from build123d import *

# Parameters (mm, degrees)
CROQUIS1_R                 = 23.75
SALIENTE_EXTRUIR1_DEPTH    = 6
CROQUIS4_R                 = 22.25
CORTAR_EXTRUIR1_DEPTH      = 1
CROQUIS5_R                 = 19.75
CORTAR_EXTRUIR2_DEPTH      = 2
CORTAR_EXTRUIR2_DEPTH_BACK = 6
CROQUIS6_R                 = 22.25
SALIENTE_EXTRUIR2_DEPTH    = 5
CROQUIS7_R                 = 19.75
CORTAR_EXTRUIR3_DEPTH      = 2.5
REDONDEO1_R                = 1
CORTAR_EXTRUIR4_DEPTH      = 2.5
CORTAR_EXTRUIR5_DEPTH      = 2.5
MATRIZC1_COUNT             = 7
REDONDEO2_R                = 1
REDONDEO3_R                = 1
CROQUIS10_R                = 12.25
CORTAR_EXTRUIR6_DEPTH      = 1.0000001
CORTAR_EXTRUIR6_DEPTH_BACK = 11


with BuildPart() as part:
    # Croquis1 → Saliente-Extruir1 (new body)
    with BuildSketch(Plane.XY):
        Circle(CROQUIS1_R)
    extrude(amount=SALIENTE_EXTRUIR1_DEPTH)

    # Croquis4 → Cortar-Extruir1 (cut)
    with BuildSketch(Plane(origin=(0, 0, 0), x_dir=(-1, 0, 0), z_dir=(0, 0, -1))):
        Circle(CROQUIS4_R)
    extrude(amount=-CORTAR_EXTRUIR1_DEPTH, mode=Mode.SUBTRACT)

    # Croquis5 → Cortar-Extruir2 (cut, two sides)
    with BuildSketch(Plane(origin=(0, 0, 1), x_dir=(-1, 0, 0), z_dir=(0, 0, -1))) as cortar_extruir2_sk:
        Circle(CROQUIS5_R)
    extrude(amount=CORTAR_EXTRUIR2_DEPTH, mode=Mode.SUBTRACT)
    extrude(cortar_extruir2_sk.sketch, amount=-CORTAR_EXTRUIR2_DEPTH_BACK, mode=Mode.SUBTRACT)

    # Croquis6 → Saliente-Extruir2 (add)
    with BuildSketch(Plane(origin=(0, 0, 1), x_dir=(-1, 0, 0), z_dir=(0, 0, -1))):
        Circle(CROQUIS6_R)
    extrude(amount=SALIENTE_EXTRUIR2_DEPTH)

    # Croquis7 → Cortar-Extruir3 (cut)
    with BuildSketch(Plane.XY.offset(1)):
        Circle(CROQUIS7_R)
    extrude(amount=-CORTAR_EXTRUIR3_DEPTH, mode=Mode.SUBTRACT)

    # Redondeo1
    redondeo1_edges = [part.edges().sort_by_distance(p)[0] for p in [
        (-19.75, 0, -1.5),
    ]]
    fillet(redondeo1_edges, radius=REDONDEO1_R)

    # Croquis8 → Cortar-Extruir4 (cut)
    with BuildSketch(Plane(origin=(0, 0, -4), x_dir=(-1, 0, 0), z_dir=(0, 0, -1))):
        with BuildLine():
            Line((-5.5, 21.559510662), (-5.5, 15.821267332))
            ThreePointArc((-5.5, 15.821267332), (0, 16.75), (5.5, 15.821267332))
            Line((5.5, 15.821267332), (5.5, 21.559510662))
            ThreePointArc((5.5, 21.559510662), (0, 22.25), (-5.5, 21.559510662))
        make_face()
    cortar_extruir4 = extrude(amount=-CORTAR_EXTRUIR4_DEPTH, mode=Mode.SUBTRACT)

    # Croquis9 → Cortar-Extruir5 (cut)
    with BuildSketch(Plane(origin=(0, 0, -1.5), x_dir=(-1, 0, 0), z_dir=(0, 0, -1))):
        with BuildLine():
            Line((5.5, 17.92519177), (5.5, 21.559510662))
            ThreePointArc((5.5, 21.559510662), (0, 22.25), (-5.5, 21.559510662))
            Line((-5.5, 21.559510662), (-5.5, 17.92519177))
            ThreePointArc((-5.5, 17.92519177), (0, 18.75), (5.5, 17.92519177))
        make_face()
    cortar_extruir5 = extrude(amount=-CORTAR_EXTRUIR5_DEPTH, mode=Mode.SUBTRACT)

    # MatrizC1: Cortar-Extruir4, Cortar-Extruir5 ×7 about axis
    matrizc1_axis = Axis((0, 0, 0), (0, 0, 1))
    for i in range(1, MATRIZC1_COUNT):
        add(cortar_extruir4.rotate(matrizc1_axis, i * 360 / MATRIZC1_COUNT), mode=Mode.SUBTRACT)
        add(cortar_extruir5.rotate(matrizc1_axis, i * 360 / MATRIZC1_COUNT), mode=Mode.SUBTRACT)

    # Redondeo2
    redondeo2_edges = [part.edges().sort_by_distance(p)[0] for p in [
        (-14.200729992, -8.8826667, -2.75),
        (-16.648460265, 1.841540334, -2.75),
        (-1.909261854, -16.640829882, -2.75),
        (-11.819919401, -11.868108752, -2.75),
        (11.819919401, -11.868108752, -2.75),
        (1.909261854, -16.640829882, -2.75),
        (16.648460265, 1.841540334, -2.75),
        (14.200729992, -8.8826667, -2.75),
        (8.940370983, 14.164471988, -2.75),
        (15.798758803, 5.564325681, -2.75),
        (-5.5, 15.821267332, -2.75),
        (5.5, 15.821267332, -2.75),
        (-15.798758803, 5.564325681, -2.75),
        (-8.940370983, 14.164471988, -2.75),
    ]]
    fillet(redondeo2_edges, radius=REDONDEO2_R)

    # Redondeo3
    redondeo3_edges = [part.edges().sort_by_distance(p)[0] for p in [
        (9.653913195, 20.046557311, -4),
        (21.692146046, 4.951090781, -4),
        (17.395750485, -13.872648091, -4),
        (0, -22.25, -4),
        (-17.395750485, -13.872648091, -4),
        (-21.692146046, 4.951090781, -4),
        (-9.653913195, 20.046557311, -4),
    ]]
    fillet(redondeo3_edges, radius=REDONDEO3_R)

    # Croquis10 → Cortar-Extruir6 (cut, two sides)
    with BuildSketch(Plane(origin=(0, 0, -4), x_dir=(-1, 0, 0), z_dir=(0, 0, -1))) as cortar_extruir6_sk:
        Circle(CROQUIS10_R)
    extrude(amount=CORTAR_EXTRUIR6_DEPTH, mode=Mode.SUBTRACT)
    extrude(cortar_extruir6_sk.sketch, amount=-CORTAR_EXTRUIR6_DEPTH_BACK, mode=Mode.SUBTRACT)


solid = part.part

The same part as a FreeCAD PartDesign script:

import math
import FreeCAD as App
import Part
import Sketcher
Q = App.Units.Quantity


def edges_at(feature, points):
    """Names of the edges that pass closest to the given points."""
    edges = feature.Shape.Edges
    near = lambda p: min(range(len(edges)), key=lambda i: edges[i].distToShape(Part.Vertex(*p))[0])
    return sorted({f"Edge{near(p) + 1}" for p in points})

doc = App.newDocument("Part")
body = doc.addObject("PartDesign::Body", "Body")

sketch1 = body.newObject("Sketcher::SketchObject", "Sketch")
sketch1.AttachmentSupport = (doc.getObject("XY_Plane"), [""])
sketch1.MapMode = "FlatFace"
sketch1.addGeometry(Part.Circle(App.Vector(0, 0, 0), App.Vector(0, 0, 1), 24), False)
sketch1.addConstraint(Sketcher.Constraint("Coincident", 0, 3, -1, 1))
sketch1.addConstraint(Sketcher.Constraint("Diameter", 0, Q("47.5 mm")))
pad1 = body.newObject("PartDesign::Pad", "Pad")
pad1.Profile = sketch1
pad1.Length = 6

sketch2 = body.newObject("Sketcher::SketchObject", "Sketch001")
sketch2.AttachmentSupport = (doc.getObject("XY_Plane"), [""])
sketch2.MapMode = "FlatFace"
sketch2.addGeometry(Part.Circle(App.Vector(0, 0, 0), App.Vector(0, 0, 1), 22), False)
sketch2.addConstraint(Sketcher.Constraint("Coincident", 0, 3, -1, 1))
sketch2.addConstraint(Sketcher.Constraint("Diameter", 0, Q("44.5 mm")))
pocket1 = body.newObject("PartDesign::Pocket", "Pocket")
pocket1.Profile = sketch2
pocket1.Length = 1
pocket1.Reversed = True

sketch3 = body.newObject("Sketcher::SketchObject", "Sketch002")
sketch3.AttachmentSupport = (doc.getObject("XY_Plane"), [""])
sketch3.MapMode = "FlatFace"
sketch3.AttachmentOffset = App.Placement(App.Vector(0, 0, 1), App.Rotation())
sketch3.addGeometry(Part.Circle(App.Vector(0, 0, 0), App.Vector(0, 0, 1), 20), False)
sketch3.addConstraint(Sketcher.Constraint("Coincident", 0, 3, -1, 1))
sketch3.addConstraint(Sketcher.Constraint("Diameter", 0, Q("39.5 mm")))
pocket2 = body.newObject("PartDesign::Pocket", "Pocket001")
pocket2.Profile = sketch3
pocket2.Type = "ThroughAll"
pocket2.Midplane = True

sketch4 = body.newObject("Sketcher::SketchObject", "Sketch003")
sketch4.AttachmentSupport = (doc.getObject("XY_Plane"), [""])
sketch4.MapMode = "FlatFace"
sketch4.AttachmentOffset = App.Placement(App.Vector(0, 0, 1), App.Rotation())
sketch4.addGeometry(Part.Circle(App.Vector(0, 0, 0), App.Vector(0, 0, 1), 22), False)
sketch4.addConstraint(Sketcher.Constraint("Coincident", 0, 3, -1, 1))
sketch4.addConstraint(Sketcher.Constraint("Diameter", 0, Q("44.5 mm")))
pad2 = body.newObject("PartDesign::Pad", "Pad001")
pad2.Profile = sketch4
pad2.Length = 5
pad2.Reversed = True

sketch5 = body.newObject("Sketcher::SketchObject", "Sketch004")
sketch5.AttachmentSupport = (doc.getObject("XY_Plane"), [""])
sketch5.MapMode = "FlatFace"
sketch5.AttachmentOffset = App.Placement(App.Vector(0, 0, 1), App.Rotation())
sketch5.addGeometry(Part.Circle(App.Vector(0, 0, 0), App.Vector(0, 0, 1), 20), False)
sketch5.addConstraint(Sketcher.Constraint("Coincident", 0, 3, -1, 1))
sketch5.addConstraint(Sketcher.Constraint("Diameter", 0, Q("39.5 mm")))
pocket3 = body.newObject("PartDesign::Pocket", "Pocket002")
pocket3.Profile = sketch5
pocket3.Length = 2.5
doc.recompute()

fillet = body.newObject("PartDesign::Fillet", "Fillet")
fillet.Base = (pocket3, edges_at(pocket3, [(-19.75, 0, -1.5)]))
fillet.Radius = 1

sketch6 = body.newObject("Sketcher::SketchObject", "Sketch005")
sketch6.AttachmentSupport = (doc.getObject("XY_Plane"), [""])
sketch6.MapMode = "FlatFace"
sketch6.AttachmentOffset = App.Placement(App.Vector(0, 0, -4), App.Rotation())
sketch6.addGeometry(Part.LineSegment(App.Vector(6, 22, 0), App.Vector(6, 16, 0)), False)
sketch6.addGeometry(Part.ArcOfCircle(Part.Circle(App.Vector(0, 0, 0), App.Vector(0, 0, 1), 17), math.radians(71), math.radians(109)), False)
sketch6.addGeometry(Part.LineSegment(App.Vector(-6, 16, 0), App.Vector(-6, 22, 0)), False)
sketch6.addGeometry(Part.ArcOfCircle(Part.Circle(App.Vector(0, 0, 0), App.Vector(0, 0, 1), 22), math.radians(76), math.radians(104)), False)
sketch6.addConstraint(Sketcher.Constraint("Coincident", 0, 2, 1, 1))
sketch6.addConstraint(Sketcher.Constraint("Coincident", 1, 2, 2, 1))
sketch6.addConstraint(Sketcher.Constraint("Coincident", 2, 2, 3, 2))
sketch6.addConstraint(Sketcher.Constraint("Coincident", 3, 1, 0, 1))
sketch6.addConstraint(Sketcher.Constraint("Vertical", 0))
sketch6.addConstraint(Sketcher.Constraint("Vertical", 2))
sketch6.addConstraint(Sketcher.Constraint("Coincident", 1, 3, -1, 1))
sketch6.addConstraint(Sketcher.Constraint("Coincident", 3, 3, -1, 1))
sketch6.addConstraint(Sketcher.Constraint("Horizontal", 0, 2, 1, 2))
sketch6.addConstraint(Sketcher.Constraint("Radius", 1, Q("16.75 mm")))
sketch6.addConstraint(Sketcher.Constraint("Radius", 3, Q("22.25 mm")))
sketch6.addConstraint(Sketcher.Constraint("DistanceX", 1, 2, 0, 2, Q("11 mm")))
pocket4 = body.newObject("PartDesign::Pocket", "Pocket003")
pocket4.Profile = sketch6
pocket4.Length = 2.5
pocket4.Reversed = True

sketch7 = body.newObject("Sketcher::SketchObject", "Sketch006")
sketch7.AttachmentSupport = (doc.getObject("XY_Plane"), [""])
sketch7.MapMode = "FlatFace"
sketch7.AttachmentOffset = App.Placement(App.Vector(0, 0, -1.5), App.Rotation())
sketch7.addGeometry(Part.LineSegment(App.Vector(-5.5, 17.9, 0), App.Vector(-5.5, 21.6, 0)), False)
sketch7.addGeometry(Part.ArcOfCircle(Part.Circle(App.Vector(0, 0, 0), App.Vector(0, 0, 1), 22.2), math.radians(76), math.radians(104)), False)
sketch7.addGeometry(Part.LineSegment(App.Vector(5.5, 21.6, 0), App.Vector(5.5, 17.9, 0)), False)
sketch7.addGeometry(Part.ArcOfCircle(Part.Circle(App.Vector(0, 0, 0), App.Vector(0, 0, 1), 18.7), math.radians(73), math.radians(107)), False)
sketch7.addConstraint(Sketcher.Constraint("Coincident", 0, 2, 1, 2))
sketch7.addConstraint(Sketcher.Constraint("Coincident", 1, 1, 2, 1))
sketch7.addConstraint(Sketcher.Constraint("Coincident", 2, 2, 3, 1))
sketch7.addConstraint(Sketcher.Constraint("Coincident", 3, 2, 0, 1))
sketch7.addConstraint(Sketcher.Constraint("Vertical", 0))
sketch7.addConstraint(Sketcher.Constraint("Vertical", 2))
sketch7.addConstraint(Sketcher.Constraint("Coincident", 1, 3, -1, 1))
sketch7.addConstraint(Sketcher.Constraint("Coincident", 3, 3, -1, 1))
sketch7.addConstraint(Sketcher.Constraint("Horizontal", 0, 2, 1, 1))
sketch7.addConstraint(Sketcher.Constraint("Radius", 1, Q("22.25 mm")))
sketch7.addConstraint(Sketcher.Constraint("Radius", 3, Q("18.75 mm")))
sketch7.addConstraint(Sketcher.Constraint("DistanceX", 0, 2, 1, 1, Q("11 mm")))
pocket5 = body.newObject("PartDesign::Pocket", "Pocket004")
pocket5.Profile = sketch7
pocket5.Length = 2.5
pocket5.Reversed = True
doc.recompute()

polarpattern = body.newObject("PartDesign::PolarPattern", "PolarPattern")
polarpattern.Originals = [pocket4, pocket5]
polarpattern.Axis = (doc.getObject("Z_Axis"), [""])
polarpattern.Angle = 360
polarpattern.Occurrences = 7
body.Tip = polarpattern
doc.recompute()

fillet2 = body.newObject("PartDesign::Fillet", "Fillet001")
fillet2.Base = (polarpattern, edges_at(polarpattern, [
    (-14.201, -8.883, -2.75),
    (-16.648, 1.842, -2.75),
    (-1.909, -16.641, -2.75),
    (-11.82, -11.868, -2.75),
    (11.82, -11.868, -2.75),
    (1.909, -16.641, -2.75),
    (16.648, 1.842, -2.75),
    (14.201, -8.883, -2.75),
    (8.94, 14.164, -2.75),
    (15.799, 5.564, -2.75),
    (-5.5, 15.821, -2.75),
    (5.5, 15.821, -2.75),
    (-15.799, 5.564, -2.75),
    (-8.94, 14.164, -2.75),
]))
fillet2.Radius = 1
doc.recompute()

fillet3 = body.newObject("PartDesign::Fillet", "Fillet002")
fillet3.Base = (fillet2, edges_at(fillet2, [
    (9.654, 20.047, -4),
    (21.692, 4.951, -4),
    (17.396, -13.873, -4),
    (0, -22.25, -4),
    (-17.396, -13.873, -4),
    (-21.692, 4.951, -4),
    (-9.654, 20.047, -4),
]))
fillet3.Radius = 1

sketch8 = body.newObject("Sketcher::SketchObject", "Sketch007")
sketch8.AttachmentSupport = (doc.getObject("XY_Plane"), [""])
sketch8.MapMode = "FlatFace"
sketch8.AttachmentOffset = App.Placement(App.Vector(0, 0, -4), App.Rotation())
sketch8.addGeometry(Part.Circle(App.Vector(0, 0, 0), App.Vector(0, 0, 1), 12), False)
sketch8.addConstraint(Sketcher.Constraint("Coincident", 0, 3, -1, 1))
sketch8.addConstraint(Sketcher.Constraint("Diameter", 0, Q("24.5 mm")))
pocket6 = body.newObject("PartDesign::Pocket", "Pocket005")
pocket6.Profile = sketch8
pocket6.Type = "ThroughAll"
pocket6.Midplane = True

doc.recompute()
